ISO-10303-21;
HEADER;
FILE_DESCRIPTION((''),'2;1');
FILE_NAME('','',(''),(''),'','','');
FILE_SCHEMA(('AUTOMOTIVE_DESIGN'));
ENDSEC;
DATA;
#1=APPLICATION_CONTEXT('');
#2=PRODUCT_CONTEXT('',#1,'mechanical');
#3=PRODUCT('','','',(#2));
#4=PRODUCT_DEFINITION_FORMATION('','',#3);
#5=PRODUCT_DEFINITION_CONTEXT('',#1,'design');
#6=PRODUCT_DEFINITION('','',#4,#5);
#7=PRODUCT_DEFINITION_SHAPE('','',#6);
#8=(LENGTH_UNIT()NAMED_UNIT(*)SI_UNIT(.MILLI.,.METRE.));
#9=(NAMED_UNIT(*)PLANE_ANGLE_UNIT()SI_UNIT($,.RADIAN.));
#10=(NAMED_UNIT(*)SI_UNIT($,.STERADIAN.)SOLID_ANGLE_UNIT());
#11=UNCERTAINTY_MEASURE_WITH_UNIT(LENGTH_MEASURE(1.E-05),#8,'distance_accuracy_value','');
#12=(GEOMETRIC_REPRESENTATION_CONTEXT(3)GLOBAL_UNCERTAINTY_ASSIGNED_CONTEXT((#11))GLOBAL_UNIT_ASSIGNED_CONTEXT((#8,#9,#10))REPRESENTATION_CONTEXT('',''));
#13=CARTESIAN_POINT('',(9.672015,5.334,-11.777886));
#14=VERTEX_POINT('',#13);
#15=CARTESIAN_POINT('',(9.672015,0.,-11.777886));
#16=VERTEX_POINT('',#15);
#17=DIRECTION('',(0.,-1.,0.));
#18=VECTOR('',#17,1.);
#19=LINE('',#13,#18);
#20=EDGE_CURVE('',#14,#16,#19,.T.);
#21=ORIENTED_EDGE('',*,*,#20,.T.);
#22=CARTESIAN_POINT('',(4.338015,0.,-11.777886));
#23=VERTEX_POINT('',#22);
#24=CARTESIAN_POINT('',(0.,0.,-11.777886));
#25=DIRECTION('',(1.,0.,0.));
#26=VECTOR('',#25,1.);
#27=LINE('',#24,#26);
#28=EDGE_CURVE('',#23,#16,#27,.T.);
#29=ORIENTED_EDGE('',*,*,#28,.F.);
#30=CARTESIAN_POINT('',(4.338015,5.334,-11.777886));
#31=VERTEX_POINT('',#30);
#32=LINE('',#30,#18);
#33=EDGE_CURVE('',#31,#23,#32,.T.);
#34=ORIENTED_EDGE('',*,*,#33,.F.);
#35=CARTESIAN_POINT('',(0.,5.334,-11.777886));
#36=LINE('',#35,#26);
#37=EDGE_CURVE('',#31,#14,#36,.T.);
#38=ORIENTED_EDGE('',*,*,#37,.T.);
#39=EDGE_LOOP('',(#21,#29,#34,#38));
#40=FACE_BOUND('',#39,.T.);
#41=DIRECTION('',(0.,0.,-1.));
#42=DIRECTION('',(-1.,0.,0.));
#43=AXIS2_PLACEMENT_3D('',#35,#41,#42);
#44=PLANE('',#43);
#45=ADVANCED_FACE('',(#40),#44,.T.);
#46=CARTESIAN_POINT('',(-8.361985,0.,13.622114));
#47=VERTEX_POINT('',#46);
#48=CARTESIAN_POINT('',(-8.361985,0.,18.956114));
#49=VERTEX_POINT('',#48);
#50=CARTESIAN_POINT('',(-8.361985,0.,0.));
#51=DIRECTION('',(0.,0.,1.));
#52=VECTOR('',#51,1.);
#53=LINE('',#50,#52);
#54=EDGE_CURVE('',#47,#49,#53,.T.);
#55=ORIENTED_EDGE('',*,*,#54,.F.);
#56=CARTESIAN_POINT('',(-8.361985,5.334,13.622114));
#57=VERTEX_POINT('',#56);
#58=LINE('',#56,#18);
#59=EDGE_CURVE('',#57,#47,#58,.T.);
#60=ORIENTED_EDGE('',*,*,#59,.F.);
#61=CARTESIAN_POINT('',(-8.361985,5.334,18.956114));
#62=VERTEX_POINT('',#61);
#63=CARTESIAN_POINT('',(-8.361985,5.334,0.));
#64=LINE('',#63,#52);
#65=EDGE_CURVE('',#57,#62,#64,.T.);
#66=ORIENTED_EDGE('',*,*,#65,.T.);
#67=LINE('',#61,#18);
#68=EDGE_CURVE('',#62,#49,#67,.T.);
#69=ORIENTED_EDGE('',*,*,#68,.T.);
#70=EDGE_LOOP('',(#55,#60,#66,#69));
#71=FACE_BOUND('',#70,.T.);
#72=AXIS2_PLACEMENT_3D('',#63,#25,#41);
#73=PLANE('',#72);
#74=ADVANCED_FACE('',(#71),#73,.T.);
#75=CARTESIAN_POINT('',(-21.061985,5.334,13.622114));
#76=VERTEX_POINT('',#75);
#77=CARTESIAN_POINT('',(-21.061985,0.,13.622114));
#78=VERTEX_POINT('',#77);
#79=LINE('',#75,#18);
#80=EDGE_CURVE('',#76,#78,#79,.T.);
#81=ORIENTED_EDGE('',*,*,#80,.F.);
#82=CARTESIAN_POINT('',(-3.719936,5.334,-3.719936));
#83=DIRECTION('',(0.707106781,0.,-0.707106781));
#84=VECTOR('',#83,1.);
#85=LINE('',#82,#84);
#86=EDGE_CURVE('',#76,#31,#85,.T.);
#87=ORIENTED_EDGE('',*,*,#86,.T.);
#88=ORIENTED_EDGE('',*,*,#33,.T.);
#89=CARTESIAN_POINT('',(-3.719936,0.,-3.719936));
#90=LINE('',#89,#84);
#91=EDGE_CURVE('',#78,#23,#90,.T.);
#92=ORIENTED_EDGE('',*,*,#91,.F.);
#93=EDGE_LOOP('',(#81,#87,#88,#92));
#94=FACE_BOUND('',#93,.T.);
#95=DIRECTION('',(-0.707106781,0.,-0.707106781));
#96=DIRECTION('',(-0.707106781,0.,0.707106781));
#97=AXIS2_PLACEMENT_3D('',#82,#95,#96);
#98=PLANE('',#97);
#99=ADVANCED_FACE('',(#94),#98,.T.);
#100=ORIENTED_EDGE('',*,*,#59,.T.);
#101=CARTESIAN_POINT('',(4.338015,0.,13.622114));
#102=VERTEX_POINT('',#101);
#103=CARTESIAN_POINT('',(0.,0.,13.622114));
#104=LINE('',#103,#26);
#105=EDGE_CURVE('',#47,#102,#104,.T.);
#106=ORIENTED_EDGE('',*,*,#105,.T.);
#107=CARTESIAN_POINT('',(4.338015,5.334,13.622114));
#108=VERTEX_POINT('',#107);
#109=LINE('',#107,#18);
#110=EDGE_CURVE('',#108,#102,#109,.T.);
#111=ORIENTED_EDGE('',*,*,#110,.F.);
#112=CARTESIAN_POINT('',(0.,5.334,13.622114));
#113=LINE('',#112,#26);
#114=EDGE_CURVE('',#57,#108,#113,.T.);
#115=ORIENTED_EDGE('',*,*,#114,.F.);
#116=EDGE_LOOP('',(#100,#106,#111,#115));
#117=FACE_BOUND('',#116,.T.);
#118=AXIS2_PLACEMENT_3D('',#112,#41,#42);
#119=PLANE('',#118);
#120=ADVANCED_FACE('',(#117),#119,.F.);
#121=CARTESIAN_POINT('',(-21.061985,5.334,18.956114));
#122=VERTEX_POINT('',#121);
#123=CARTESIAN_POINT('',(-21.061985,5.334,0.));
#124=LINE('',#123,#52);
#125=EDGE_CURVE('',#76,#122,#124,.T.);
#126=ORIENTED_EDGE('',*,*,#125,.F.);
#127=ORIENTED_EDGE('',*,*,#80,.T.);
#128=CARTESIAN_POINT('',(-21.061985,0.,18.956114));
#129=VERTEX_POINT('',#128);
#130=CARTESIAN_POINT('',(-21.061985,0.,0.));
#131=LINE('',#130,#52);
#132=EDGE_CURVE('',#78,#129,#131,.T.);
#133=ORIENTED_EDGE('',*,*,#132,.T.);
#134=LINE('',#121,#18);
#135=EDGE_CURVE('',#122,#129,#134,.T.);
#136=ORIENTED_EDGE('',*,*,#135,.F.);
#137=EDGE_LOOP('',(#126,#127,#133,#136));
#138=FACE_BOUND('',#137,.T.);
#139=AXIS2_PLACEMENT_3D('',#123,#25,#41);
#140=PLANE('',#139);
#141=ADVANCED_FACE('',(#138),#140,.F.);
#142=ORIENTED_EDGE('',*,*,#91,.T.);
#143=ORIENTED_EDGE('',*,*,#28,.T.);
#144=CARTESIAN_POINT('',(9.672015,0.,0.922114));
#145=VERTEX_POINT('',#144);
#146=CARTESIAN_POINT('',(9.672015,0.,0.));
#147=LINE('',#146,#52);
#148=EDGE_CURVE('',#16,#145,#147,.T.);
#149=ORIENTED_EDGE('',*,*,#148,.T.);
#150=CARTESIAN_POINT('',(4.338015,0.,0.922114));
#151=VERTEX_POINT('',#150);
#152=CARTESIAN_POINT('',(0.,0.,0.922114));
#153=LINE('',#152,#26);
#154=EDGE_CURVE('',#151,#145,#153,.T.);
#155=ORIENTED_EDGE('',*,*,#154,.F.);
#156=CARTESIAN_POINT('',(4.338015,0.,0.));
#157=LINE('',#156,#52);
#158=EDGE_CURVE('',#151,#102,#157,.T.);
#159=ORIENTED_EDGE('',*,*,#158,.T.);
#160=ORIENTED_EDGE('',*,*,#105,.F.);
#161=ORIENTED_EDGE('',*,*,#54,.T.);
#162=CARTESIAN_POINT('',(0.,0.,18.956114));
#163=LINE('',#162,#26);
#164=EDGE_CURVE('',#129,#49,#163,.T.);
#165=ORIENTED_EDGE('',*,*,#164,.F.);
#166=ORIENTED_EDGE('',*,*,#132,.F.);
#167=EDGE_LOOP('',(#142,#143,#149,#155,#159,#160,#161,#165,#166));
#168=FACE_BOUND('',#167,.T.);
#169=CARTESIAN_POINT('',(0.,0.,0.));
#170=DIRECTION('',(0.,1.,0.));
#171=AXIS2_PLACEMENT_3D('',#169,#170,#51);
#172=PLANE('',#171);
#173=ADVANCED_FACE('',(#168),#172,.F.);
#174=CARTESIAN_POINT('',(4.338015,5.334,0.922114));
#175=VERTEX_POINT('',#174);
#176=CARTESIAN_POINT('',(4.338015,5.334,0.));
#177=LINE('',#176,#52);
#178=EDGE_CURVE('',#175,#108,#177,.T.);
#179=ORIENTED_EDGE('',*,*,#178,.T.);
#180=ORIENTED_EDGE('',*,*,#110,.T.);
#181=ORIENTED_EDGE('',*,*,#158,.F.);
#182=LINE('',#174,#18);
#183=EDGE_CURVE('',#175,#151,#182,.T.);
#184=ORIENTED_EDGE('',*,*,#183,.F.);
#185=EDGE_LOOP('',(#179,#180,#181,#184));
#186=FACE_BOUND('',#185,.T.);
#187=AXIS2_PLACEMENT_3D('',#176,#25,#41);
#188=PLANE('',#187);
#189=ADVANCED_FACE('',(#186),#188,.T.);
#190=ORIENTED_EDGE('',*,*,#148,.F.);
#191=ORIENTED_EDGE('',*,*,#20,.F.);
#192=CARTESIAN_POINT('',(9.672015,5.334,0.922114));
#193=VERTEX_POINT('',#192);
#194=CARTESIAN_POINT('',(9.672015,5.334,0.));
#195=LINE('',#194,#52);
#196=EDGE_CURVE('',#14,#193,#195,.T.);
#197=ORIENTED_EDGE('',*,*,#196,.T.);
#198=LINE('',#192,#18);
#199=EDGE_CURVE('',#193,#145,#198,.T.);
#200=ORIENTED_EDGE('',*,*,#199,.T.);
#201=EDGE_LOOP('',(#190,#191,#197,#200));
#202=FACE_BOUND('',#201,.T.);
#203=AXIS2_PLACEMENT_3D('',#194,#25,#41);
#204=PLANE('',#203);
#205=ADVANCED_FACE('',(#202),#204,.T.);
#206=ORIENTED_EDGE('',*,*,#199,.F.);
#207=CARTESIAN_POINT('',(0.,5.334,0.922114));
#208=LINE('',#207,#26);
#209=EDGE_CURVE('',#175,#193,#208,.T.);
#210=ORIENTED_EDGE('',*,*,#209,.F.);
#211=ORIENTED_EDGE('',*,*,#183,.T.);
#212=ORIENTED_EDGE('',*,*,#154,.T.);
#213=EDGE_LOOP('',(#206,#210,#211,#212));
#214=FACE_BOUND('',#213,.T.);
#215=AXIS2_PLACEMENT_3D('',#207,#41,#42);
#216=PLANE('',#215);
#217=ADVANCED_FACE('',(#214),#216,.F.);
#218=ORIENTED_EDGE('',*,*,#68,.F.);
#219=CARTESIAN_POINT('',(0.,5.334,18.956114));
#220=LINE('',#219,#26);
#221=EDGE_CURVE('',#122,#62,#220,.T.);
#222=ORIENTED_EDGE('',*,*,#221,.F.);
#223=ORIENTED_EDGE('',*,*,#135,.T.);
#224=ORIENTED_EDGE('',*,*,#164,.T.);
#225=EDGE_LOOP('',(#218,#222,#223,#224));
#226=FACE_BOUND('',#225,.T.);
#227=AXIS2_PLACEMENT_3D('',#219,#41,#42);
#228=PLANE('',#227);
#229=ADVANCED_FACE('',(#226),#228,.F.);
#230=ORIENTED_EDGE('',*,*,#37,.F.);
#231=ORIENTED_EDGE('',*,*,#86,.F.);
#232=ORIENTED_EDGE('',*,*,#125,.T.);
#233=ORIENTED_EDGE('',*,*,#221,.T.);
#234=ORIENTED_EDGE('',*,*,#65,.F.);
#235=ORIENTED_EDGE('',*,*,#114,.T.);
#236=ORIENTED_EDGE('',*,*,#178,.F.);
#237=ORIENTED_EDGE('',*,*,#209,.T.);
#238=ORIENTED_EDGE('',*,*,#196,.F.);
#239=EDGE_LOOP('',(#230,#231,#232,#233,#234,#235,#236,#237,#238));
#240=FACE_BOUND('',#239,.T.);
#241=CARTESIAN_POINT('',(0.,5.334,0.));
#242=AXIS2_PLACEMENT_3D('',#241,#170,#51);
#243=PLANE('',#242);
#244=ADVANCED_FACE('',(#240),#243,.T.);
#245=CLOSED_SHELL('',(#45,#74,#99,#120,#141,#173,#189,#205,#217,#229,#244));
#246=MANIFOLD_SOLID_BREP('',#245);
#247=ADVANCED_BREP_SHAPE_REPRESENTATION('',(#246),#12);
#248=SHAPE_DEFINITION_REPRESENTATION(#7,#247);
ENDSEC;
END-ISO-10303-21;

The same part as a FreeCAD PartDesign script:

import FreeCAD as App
import Part
import Sketcher

V = App.Vector
Q = App.Units.Quantity

doc = App.newDocument("Part")
params = doc.addObject("Spreadsheet::Sheet", "Params")
for row, (alias, value) in enumerate([
    ("sketch1_width", "0.5 in"),
    ("sketch1_width2", "0.21 in"),
    ("pad1_length", "0.21 in"),
], start=1):
    params.set(f"A{row}", alias)
    params.set(f"B{row}", "=" + value)
    params.setAlias(f"B{row}", alias)

body = doc.addObject("PartDesign::Body", "Body")

# Sketch on XZ plane
sketch1 = body.newObject("Sketcher::SketchObject", "Sketch")
sketch1.AttachmentSupport = (doc.getObject("XZ_Plane"), [""])
sketch1.MapMode = "FlatFace"
sketch1.addGeometry([
    Part.LineSegment(V(-21, 14, 0), V(-21, 19, 0)),  # 0
    Part.LineSegment(V(-21, 19, 0), V(-8, 19, 0)),  # 1
    Part.LineSegment(V(-8, 19, 0), V(-8, 14, 0)),  # 2
    Part.LineSegment(V(-8, 14, 0), V(4, 14, 0)),  # 3
    Part.LineSegment(V(4, 14, 0), V(4, 1, 0)),  # 4
    Part.LineSegment(V(4, 1, 0), V(10, 1, 0)),  # 5
    Part.LineSegment(V(10, 1, 0), V(10, -12, 0)),  # 6
    Part.LineSegment(V(10, -12, 0), V(4, -12, 0)),  # 7
    Part.LineSegment(V(4, -12, 0), V(-21, 14, 0)),  # 8
], False)
sketch1.addConstraint([
    Sketcher.Constraint("Coincident", 0, 2, 1, 1),
    Sketcher.Constraint("Coincident", 1, 2, 2, 1),
    Sketcher.Constraint("Coincident", 2, 2, 3, 1),
    Sketcher.Constraint("Coincident", 3, 2, 4, 1),
    Sketcher.Constraint("Coincident", 4, 2, 5, 1),
    Sketcher.Constraint("Coincident", 5, 2, 6, 1),
    Sketcher.Constraint("Coincident", 6, 2, 7, 1),
    Sketcher.Constraint("Coincident", 7, 2, 8, 1),
    Sketcher.Constraint("Coincident", 8, 2, 0, 1),
    Sketcher.Constraint("Vertical", 0),
    Sketcher.Constraint("Horizontal", 1),
    Sketcher.Constraint("Vertical", 2),
    Sketcher.Constraint("Horizontal", 3),
    Sketcher.Constraint("Vertical", 4),
    Sketcher.Constraint("Horizontal", 5),
    Sketcher.Constraint("Vertical", 6),
    Sketcher.Constraint("Horizontal", 7),
    Sketcher.Constraint("Horizontal", 3, 2, 8, 2),
    Sketcher.Constraint("Vertical", 4, 2, 7, 2),
    Sketcher.Constraint("Equal", 1, 3),
    Sketcher.Constraint("Equal", 7, 0),
    Sketcher.Constraint("Equal", 3, 4),
    Sketcher.Constraint("Equal", 4, 6),
    Sketcher.Constraint("DistanceX", 1, 1, 1, 2, Q("0.5 in")),
    Sketcher.Constraint("DistanceX", 5, 1, 5, 2, Q("0.21 in")),
    Sketcher.Constraint("DistanceX", 0, 2, -1, 1, Q("21.061985 mm")),
    Sketcher.Constraint("DistanceY", -1, 1, 0, 2, Q("18.956114 mm")),
])
sketch1.setExpression("Constraints[23]", "Params.sketch1_width")
sketch1.setExpression("Constraints[24]", "Params.sketch1_width2")
pad1 = body.newObject("PartDesign::Pad", "Pad")
pad1.Profile = sketch1
pad1.setExpression("Length", "Params.pad1_length")
pad1.Reversed = True

doc.recompute()
